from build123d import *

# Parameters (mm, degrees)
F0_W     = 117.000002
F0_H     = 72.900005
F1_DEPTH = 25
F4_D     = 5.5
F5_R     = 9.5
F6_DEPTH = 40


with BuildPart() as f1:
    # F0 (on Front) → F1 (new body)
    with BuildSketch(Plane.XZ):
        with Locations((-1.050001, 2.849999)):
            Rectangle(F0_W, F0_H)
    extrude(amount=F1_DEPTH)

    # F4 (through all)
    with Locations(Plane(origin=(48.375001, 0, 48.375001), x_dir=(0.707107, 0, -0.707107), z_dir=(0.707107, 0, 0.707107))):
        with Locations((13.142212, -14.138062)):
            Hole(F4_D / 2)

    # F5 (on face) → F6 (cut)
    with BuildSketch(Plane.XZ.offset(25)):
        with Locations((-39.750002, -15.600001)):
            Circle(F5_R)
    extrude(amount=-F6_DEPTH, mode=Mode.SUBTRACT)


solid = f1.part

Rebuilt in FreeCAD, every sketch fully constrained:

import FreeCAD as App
import Part
import Sketcher
from FreeCAD import Vector
Q = App.Units.Quantity


def add_polygon(sketch, points):
    """Adds a closed chain of lines whose ends are joined by coincident constraints."""
    first, n = sketch.GeometryCount, len(points)
    for a, b in zip(points, points[1:] + points[:1]):
        sketch.addGeometry(Part.LineSegment(App.Vector(*a, 0), App.Vector(*b, 0)), False)
    for i in range(n):
        sketch.addConstraint(Sketcher.Constraint("Coincident", first + i, 2, first + (i + 1) % n, 1))

doc = App.newDocument("Part")
body = doc.addObject("PartDesign::Body", "Body")

sketch1 = body.newObject("Sketcher::SketchObject", "Sketch")
sketch1.AttachmentSupport = (doc.getObject("XZ_Plane"), [""])
sketch1.MapMode = "FlatFace"
add_polygon(sketch1, [(-60, 39), (-60, -34), (57, -34), (57, 39)])
sketch1.addConstraint([
    Sketcher.Constraint("Vertical", 0),
    Sketcher.Constraint("Horizontal", 1),
    Sketcher.Constraint("Vertical", 2),
    Sketcher.Constraint("Horizontal", 3),
    Sketcher.Constraint("DistanceX", 1, 1, 1, 2, Q("117.000002 mm")),
    Sketcher.Constraint("DistanceY", -1, 1, 2, 2, Q("39.300002 mm")),
    Sketcher.Constraint("DistanceX", -1, 1, 1, 2, Q("57.45 mm")),
    Sketcher.Constraint("DistanceY", 0, 2, 0, 1, Q("72.900005 mm")),
])
pad1 = body.newObject("PartDesign::Pad", "Pad")
pad1.Profile = sketch1
pad1.Length = 25

sketch2 = body.newObject("Sketcher::SketchObject", "Sketch001")
sketch2.Placement = App.Placement(Vector(48.375001, 0, 48.375001), App.Rotation(Vector(0.707106781, 0, -0.707106781), Vector(0, 0.999999999, 0), Vector(0.707106781, 0, 0.707106781), "ZXY"))
sketch2.addGeometry(Part.Circle(Vector(13.1, -14.1, 0), Vector(0, 0, 1), 2.8), False)
sketch2.addConstraint([
    Sketcher.Constraint("Diameter", 0, Q("5.5 mm")),
    Sketcher.Constraint("DistanceX", -1, 1, 0, 3, Q("13.142212 mm")),
    Sketcher.Constraint("DistanceY", 0, 3, -1, 1, Q("14.138062 mm")),
])
doc.recompute()
hole = body.newObject("PartDesign::Hole", "Hole")
hole.Profile = sketch2
hole.ThreadType = "None"
hole.Diameter = 5.5
hole.DepthType = "ThroughAll"

sketch3 = body.newObject("Sketcher::SketchObject", "Sketch002")
sketch3.AttachmentSupport = (doc.getObject("XZ_Plane"), [""])
sketch3.MapMode = "FlatFace"
sketch3.AttachmentOffset = App.Placement(Vector(0, 0, 25), App.Rotation())
sketch3.addGeometry(Part.Circle(Vector(-40, -16, 0), Vector(0, 0, 1), 10), False)
sketch3.addConstraint([
    Sketcher.Constraint("Diameter", 0, Q("19 mm")),
    Sketcher.Constraint("DistanceY", 0, 3, -1, 1, Q("15.600001 mm")),
    Sketcher.Constraint("DistanceX", 0, 3, -1, 1, Q("39.750002 mm")),
])
pocket1 = body.newObject("PartDesign::Pocket", "Pocket")
pocket1.Profile = sketch3
pocket1.Length = 40

doc.recompute()
